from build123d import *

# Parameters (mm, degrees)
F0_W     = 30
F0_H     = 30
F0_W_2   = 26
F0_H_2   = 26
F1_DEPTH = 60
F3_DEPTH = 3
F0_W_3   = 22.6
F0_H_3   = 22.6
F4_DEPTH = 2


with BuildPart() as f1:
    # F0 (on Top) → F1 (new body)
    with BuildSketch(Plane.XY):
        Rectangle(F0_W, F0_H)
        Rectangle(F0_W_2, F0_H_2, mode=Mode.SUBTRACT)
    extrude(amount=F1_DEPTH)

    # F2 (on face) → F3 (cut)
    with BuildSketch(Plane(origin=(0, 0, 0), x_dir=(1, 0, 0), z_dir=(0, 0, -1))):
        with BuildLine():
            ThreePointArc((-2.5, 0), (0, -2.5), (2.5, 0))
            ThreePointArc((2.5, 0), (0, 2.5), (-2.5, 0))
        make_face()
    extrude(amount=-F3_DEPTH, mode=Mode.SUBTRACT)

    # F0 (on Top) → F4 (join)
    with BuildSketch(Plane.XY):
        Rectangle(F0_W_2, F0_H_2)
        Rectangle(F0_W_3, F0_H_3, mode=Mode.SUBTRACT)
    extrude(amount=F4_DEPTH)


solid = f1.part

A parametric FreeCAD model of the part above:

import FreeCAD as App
import Part
import Sketcher
from FreeCAD import Vector

doc = App.newDocument("Part")
params = doc.addObject("Spreadsheet::Sheet", "Params")
for row, (alias, value) in enumerate([
    ("sketch1_width", "30 mm"),
    ("sketch1_width2", "26 mm"),
    ("pad1_length", "60 mm"),
    ("sketch2_diameter", "5 mm"),
    ("pocket1_length", "3 mm"),
    ("sketch3_width", "26 mm"),
    ("sketch3_width2", "22.6 mm"),
    ("pad2_length", "2 mm"),
], start=1):
    params.set(f"A{row}", alias)
    params.set(f"B{row}", "=" + value)
    params.setAlias(f"B{row}", alias)

body = doc.addObject("PartDesign::Body", "Body")

# Sketch on XY plane
sketch1 = body.newObject("Sketcher::SketchObject", "Sketch")
sketch1.AttachmentSupport = (doc.getObject("XY_Plane"), [""])
sketch1.MapMode = "FlatFace"
sketch1.addGeometry(Part.LineSegment(Vector(-15, 15, 0), Vector(-15, -15, 0)), False)
sketch1.addGeometry(Part.LineSegment(Vector(-15, -15, 0), Vector(15, -15, 0)), False)
sketch1.addGeometry(Part.LineSegment(Vector(15, -15, 0), Vector(15, 15, 0)), False)
sketch1.addGeometry(Part.LineSegment(Vector(15, 15, 0), Vector(-15, 15, 0)), False)
sketch1.addGeometry(Part.LineSegment(Vector(13, -13, 0), Vector(-13, -13, 0)), False)
sketch1.addGeometry(Part.LineSegment(Vector(-13, -13, 0), Vector(-13, 13, 0)), False)
sketch1.addGeometry(Part.LineSegment(Vector(-13, 13, 0), Vector(13, 13, 0)), False)
sketch1.addGeometry(Part.LineSegment(Vector(13, 13, 0), Vector(13, -13, 0)), False)
sketch1.addConstraint(Sketcher.Constraint("Coincident", 0, 2, 1, 1))
sketch1.addConstraint(Sketcher.Constraint("Coincident", 1, 2, 2, 1))
sketch1.addConstraint(Sketcher.Constraint("Coincident", 2, 2, 3, 1))
sketch1.addConstraint(Sketcher.Constraint("Coincident", 3, 2, 0, 1))
sketch1.addConstraint(Sketcher.Constraint("Coincident", 4, 2, 5, 1))
sketch1.addConstraint(Sketcher.Constraint("Coincident", 5, 2, 6, 1))
sketch1.addConstraint(Sketcher.Constraint("Coincident", 6, 2, 7, 1))
sketch1.addConstraint(Sketcher.Constraint("Coincident", 7, 2, 4, 1))
sketch1.addConstraint(Sketcher.Constraint("Vertical", 0))
sketch1.addConstraint(Sketcher.Constraint("Horizontal", 1))
sketch1.addConstraint(Sketcher.Constraint("Vertical", 2))
sketch1.addConstraint(Sketcher.Constraint("Horizontal", 3))
sketch1.addConstraint(Sketcher.Constraint("Horizontal", 4))
sketch1.addConstraint(Sketcher.Constraint("Vertical", 5))
sketch1.addConstraint(Sketcher.Constraint("Horizontal", 6))
sketch1.addConstraint(Sketcher.Constraint("Vertical", 7))
sketch1.addConstraint(Sketcher.Constraint("Symmetric", 0, 2, 2, 2, -1, 1))
sketch1.addConstraint(Sketcher.Constraint("Symmetric", 4, 2, 6, 2, -1, 1))
sketch1.addConstraint(Sketcher.Constraint("Equal", 3, 0))
sketch1.addConstraint(Sketcher.Constraint("Equal", 6, 5))
sketch1.addConstraint(Sketcher.Constraint("DistanceX", 1, 1, 1, 2, 30.0))
sketch1.addConstraint(Sketcher.Constraint("DistanceX", 4, 2, 4, 1, 26.0))
sketch1.setExpression("Constraints[20]", "Params.sketch1_width")
sketch1.setExpression("Constraints[21]", "Params.sketch1_width2")
pad1 = body.newObject("PartDesign::Pad", "Pad")
pad1.Profile = sketch1
pad1.setExpression("Length", "Params.pad1_length")

# Sketch on XY plane
sketch2 = body.newObject("Sketcher::SketchObject", "Sketch001")
sketch2.AttachmentSupport = (doc.getObject("XY_Plane"), [""])
sketch2.MapMode = "FlatFace"
sketch2.addGeometry(Part.Circle(Vector(0, 0, 0), Vector(0, 0, 1), 2.5), False)
sketch2.addConstraint(Sketcher.Constraint("Coincident", 0, 3, -1, 1))
sketch2.addConstraint(Sketcher.Constraint("Diameter", 0, 5.0))
sketch2.setExpression("Constraints[1]", "Params.sketch2_diameter")
pocket1 = body.newObject("PartDesign::Pocket", "Pocket")
pocket1.Profile = sketch2
pocket1.setExpression("Length", "Params.pocket1_length")
pocket1.Reversed = True

# Sketch on XY plane
sketch3 = body.newObject("Sketcher::SketchObject", "Sketch002")
sketch3.AttachmentSupport = (doc.getObject("XY_Plane"), [""])
sketch3.MapMode = "FlatFace"
sketch3.addGeometry(Part.LineSegment(Vector(-13, 13, 0), Vector(-13, -13, 0)), False)
sketch3.addGeometry(Part.LineSegment(Vector(-13, -13, 0), Vector(13, -13, 0)), False)
sketch3.addGeometry(Part.LineSegment(Vector(13, -13, 0), Vector(13, 13, 0)), False)
sketch3.addGeometry(Part.LineSegment(Vector(13, 13, 0), Vector(-13, 13, 0)), False)
sketch3.addGeometry(Part.LineSegment(Vector(11, -11, 0), Vector(-11, -11, 0)), False)
sketch3.addGeometry(Part.LineSegment(Vector(-11, -11, 0), Vector(-11, 11, 0)), False)
sketch3.addGeometry(Part.LineSegment(Vector(-11, 11, 0), Vector(11, 11, 0)), False)
sketch3.addGeometry(Part.LineSegment(Vector(11, 11, 0), Vector(11, -11, 0)), False)
sketch3.addConstraint(Sketcher.Constraint("Coincident", 0, 2, 1, 1))
sketch3.addConstraint(Sketcher.Constraint("Coincident", 1, 2, 2, 1))
sketch3.addConstraint(Sketcher.Constraint("Coincident", 2, 2, 3, 1))
sketch3.addConstraint(Sketcher.Constraint("Coincident", 3, 2, 0, 1))
sketch3.addConstraint(Sketcher.Constraint("Coincident", 4, 2, 5, 1))
sketch3.addConstraint(Sketcher.Constraint("Coincident", 5, 2, 6, 1))
sketch3.addConstraint(Sketcher.Constraint("Coincident", 6, 2, 7, 1))
sketch3.addConstraint(Sketcher.Constraint("Coincident", 7, 2, 4, 1))
sketch3.addConstraint(Sketcher.Constraint("Vertical", 0))
sketch3.addConstraint(Sketcher.Constraint("Horizontal", 1))
sketch3.addConstraint(Sketcher.Constraint("Vertical", 2))
sketch3.addConstraint(Sketcher.Constraint("Horizontal", 3))
sketch3.addConstraint(Sketcher.Constraint("Horizontal", 4))
sketch3.addConstraint(Sketcher.Constraint("Vertical", 5))
sketch3.addConstraint(Sketcher.Constraint("Horizontal", 6))
sketch3.addConstraint(Sketcher.Constraint("Vertical", 7))
sketch3.addConstraint(Sketcher.Constraint("Symmetric", 0, 2, 2, 2, -1, 1))
sketch3.addConstraint(Sketcher.Constraint("Symmetric", 4, 2, 6, 2, -1, 1))
sketch3.addConstraint(Sketcher.Constraint("Equal", 3, 0))
sketch3.addConstraint(Sketcher.Constraint("Equal", 6, 5))
sketch3.addConstraint(Sketcher.Constraint("DistanceX", 1, 1, 1, 2, 26.0))
sketch3.addConstraint(Sketcher.Constraint("DistanceX", 4, 2, 4, 1, 22.6))
sketch3.setExpression("Constraints[20]", "Params.sketch3_width")
sketch3.setExpression("Constraints[21]", "Params.sketch3_width2")
pad2 = body.newObject("PartDesign::Pad", "Pad001")
pad2.Profile = sketch3
pad2.setExpression("Length", "Params.pad2_length")

doc.recompute()
